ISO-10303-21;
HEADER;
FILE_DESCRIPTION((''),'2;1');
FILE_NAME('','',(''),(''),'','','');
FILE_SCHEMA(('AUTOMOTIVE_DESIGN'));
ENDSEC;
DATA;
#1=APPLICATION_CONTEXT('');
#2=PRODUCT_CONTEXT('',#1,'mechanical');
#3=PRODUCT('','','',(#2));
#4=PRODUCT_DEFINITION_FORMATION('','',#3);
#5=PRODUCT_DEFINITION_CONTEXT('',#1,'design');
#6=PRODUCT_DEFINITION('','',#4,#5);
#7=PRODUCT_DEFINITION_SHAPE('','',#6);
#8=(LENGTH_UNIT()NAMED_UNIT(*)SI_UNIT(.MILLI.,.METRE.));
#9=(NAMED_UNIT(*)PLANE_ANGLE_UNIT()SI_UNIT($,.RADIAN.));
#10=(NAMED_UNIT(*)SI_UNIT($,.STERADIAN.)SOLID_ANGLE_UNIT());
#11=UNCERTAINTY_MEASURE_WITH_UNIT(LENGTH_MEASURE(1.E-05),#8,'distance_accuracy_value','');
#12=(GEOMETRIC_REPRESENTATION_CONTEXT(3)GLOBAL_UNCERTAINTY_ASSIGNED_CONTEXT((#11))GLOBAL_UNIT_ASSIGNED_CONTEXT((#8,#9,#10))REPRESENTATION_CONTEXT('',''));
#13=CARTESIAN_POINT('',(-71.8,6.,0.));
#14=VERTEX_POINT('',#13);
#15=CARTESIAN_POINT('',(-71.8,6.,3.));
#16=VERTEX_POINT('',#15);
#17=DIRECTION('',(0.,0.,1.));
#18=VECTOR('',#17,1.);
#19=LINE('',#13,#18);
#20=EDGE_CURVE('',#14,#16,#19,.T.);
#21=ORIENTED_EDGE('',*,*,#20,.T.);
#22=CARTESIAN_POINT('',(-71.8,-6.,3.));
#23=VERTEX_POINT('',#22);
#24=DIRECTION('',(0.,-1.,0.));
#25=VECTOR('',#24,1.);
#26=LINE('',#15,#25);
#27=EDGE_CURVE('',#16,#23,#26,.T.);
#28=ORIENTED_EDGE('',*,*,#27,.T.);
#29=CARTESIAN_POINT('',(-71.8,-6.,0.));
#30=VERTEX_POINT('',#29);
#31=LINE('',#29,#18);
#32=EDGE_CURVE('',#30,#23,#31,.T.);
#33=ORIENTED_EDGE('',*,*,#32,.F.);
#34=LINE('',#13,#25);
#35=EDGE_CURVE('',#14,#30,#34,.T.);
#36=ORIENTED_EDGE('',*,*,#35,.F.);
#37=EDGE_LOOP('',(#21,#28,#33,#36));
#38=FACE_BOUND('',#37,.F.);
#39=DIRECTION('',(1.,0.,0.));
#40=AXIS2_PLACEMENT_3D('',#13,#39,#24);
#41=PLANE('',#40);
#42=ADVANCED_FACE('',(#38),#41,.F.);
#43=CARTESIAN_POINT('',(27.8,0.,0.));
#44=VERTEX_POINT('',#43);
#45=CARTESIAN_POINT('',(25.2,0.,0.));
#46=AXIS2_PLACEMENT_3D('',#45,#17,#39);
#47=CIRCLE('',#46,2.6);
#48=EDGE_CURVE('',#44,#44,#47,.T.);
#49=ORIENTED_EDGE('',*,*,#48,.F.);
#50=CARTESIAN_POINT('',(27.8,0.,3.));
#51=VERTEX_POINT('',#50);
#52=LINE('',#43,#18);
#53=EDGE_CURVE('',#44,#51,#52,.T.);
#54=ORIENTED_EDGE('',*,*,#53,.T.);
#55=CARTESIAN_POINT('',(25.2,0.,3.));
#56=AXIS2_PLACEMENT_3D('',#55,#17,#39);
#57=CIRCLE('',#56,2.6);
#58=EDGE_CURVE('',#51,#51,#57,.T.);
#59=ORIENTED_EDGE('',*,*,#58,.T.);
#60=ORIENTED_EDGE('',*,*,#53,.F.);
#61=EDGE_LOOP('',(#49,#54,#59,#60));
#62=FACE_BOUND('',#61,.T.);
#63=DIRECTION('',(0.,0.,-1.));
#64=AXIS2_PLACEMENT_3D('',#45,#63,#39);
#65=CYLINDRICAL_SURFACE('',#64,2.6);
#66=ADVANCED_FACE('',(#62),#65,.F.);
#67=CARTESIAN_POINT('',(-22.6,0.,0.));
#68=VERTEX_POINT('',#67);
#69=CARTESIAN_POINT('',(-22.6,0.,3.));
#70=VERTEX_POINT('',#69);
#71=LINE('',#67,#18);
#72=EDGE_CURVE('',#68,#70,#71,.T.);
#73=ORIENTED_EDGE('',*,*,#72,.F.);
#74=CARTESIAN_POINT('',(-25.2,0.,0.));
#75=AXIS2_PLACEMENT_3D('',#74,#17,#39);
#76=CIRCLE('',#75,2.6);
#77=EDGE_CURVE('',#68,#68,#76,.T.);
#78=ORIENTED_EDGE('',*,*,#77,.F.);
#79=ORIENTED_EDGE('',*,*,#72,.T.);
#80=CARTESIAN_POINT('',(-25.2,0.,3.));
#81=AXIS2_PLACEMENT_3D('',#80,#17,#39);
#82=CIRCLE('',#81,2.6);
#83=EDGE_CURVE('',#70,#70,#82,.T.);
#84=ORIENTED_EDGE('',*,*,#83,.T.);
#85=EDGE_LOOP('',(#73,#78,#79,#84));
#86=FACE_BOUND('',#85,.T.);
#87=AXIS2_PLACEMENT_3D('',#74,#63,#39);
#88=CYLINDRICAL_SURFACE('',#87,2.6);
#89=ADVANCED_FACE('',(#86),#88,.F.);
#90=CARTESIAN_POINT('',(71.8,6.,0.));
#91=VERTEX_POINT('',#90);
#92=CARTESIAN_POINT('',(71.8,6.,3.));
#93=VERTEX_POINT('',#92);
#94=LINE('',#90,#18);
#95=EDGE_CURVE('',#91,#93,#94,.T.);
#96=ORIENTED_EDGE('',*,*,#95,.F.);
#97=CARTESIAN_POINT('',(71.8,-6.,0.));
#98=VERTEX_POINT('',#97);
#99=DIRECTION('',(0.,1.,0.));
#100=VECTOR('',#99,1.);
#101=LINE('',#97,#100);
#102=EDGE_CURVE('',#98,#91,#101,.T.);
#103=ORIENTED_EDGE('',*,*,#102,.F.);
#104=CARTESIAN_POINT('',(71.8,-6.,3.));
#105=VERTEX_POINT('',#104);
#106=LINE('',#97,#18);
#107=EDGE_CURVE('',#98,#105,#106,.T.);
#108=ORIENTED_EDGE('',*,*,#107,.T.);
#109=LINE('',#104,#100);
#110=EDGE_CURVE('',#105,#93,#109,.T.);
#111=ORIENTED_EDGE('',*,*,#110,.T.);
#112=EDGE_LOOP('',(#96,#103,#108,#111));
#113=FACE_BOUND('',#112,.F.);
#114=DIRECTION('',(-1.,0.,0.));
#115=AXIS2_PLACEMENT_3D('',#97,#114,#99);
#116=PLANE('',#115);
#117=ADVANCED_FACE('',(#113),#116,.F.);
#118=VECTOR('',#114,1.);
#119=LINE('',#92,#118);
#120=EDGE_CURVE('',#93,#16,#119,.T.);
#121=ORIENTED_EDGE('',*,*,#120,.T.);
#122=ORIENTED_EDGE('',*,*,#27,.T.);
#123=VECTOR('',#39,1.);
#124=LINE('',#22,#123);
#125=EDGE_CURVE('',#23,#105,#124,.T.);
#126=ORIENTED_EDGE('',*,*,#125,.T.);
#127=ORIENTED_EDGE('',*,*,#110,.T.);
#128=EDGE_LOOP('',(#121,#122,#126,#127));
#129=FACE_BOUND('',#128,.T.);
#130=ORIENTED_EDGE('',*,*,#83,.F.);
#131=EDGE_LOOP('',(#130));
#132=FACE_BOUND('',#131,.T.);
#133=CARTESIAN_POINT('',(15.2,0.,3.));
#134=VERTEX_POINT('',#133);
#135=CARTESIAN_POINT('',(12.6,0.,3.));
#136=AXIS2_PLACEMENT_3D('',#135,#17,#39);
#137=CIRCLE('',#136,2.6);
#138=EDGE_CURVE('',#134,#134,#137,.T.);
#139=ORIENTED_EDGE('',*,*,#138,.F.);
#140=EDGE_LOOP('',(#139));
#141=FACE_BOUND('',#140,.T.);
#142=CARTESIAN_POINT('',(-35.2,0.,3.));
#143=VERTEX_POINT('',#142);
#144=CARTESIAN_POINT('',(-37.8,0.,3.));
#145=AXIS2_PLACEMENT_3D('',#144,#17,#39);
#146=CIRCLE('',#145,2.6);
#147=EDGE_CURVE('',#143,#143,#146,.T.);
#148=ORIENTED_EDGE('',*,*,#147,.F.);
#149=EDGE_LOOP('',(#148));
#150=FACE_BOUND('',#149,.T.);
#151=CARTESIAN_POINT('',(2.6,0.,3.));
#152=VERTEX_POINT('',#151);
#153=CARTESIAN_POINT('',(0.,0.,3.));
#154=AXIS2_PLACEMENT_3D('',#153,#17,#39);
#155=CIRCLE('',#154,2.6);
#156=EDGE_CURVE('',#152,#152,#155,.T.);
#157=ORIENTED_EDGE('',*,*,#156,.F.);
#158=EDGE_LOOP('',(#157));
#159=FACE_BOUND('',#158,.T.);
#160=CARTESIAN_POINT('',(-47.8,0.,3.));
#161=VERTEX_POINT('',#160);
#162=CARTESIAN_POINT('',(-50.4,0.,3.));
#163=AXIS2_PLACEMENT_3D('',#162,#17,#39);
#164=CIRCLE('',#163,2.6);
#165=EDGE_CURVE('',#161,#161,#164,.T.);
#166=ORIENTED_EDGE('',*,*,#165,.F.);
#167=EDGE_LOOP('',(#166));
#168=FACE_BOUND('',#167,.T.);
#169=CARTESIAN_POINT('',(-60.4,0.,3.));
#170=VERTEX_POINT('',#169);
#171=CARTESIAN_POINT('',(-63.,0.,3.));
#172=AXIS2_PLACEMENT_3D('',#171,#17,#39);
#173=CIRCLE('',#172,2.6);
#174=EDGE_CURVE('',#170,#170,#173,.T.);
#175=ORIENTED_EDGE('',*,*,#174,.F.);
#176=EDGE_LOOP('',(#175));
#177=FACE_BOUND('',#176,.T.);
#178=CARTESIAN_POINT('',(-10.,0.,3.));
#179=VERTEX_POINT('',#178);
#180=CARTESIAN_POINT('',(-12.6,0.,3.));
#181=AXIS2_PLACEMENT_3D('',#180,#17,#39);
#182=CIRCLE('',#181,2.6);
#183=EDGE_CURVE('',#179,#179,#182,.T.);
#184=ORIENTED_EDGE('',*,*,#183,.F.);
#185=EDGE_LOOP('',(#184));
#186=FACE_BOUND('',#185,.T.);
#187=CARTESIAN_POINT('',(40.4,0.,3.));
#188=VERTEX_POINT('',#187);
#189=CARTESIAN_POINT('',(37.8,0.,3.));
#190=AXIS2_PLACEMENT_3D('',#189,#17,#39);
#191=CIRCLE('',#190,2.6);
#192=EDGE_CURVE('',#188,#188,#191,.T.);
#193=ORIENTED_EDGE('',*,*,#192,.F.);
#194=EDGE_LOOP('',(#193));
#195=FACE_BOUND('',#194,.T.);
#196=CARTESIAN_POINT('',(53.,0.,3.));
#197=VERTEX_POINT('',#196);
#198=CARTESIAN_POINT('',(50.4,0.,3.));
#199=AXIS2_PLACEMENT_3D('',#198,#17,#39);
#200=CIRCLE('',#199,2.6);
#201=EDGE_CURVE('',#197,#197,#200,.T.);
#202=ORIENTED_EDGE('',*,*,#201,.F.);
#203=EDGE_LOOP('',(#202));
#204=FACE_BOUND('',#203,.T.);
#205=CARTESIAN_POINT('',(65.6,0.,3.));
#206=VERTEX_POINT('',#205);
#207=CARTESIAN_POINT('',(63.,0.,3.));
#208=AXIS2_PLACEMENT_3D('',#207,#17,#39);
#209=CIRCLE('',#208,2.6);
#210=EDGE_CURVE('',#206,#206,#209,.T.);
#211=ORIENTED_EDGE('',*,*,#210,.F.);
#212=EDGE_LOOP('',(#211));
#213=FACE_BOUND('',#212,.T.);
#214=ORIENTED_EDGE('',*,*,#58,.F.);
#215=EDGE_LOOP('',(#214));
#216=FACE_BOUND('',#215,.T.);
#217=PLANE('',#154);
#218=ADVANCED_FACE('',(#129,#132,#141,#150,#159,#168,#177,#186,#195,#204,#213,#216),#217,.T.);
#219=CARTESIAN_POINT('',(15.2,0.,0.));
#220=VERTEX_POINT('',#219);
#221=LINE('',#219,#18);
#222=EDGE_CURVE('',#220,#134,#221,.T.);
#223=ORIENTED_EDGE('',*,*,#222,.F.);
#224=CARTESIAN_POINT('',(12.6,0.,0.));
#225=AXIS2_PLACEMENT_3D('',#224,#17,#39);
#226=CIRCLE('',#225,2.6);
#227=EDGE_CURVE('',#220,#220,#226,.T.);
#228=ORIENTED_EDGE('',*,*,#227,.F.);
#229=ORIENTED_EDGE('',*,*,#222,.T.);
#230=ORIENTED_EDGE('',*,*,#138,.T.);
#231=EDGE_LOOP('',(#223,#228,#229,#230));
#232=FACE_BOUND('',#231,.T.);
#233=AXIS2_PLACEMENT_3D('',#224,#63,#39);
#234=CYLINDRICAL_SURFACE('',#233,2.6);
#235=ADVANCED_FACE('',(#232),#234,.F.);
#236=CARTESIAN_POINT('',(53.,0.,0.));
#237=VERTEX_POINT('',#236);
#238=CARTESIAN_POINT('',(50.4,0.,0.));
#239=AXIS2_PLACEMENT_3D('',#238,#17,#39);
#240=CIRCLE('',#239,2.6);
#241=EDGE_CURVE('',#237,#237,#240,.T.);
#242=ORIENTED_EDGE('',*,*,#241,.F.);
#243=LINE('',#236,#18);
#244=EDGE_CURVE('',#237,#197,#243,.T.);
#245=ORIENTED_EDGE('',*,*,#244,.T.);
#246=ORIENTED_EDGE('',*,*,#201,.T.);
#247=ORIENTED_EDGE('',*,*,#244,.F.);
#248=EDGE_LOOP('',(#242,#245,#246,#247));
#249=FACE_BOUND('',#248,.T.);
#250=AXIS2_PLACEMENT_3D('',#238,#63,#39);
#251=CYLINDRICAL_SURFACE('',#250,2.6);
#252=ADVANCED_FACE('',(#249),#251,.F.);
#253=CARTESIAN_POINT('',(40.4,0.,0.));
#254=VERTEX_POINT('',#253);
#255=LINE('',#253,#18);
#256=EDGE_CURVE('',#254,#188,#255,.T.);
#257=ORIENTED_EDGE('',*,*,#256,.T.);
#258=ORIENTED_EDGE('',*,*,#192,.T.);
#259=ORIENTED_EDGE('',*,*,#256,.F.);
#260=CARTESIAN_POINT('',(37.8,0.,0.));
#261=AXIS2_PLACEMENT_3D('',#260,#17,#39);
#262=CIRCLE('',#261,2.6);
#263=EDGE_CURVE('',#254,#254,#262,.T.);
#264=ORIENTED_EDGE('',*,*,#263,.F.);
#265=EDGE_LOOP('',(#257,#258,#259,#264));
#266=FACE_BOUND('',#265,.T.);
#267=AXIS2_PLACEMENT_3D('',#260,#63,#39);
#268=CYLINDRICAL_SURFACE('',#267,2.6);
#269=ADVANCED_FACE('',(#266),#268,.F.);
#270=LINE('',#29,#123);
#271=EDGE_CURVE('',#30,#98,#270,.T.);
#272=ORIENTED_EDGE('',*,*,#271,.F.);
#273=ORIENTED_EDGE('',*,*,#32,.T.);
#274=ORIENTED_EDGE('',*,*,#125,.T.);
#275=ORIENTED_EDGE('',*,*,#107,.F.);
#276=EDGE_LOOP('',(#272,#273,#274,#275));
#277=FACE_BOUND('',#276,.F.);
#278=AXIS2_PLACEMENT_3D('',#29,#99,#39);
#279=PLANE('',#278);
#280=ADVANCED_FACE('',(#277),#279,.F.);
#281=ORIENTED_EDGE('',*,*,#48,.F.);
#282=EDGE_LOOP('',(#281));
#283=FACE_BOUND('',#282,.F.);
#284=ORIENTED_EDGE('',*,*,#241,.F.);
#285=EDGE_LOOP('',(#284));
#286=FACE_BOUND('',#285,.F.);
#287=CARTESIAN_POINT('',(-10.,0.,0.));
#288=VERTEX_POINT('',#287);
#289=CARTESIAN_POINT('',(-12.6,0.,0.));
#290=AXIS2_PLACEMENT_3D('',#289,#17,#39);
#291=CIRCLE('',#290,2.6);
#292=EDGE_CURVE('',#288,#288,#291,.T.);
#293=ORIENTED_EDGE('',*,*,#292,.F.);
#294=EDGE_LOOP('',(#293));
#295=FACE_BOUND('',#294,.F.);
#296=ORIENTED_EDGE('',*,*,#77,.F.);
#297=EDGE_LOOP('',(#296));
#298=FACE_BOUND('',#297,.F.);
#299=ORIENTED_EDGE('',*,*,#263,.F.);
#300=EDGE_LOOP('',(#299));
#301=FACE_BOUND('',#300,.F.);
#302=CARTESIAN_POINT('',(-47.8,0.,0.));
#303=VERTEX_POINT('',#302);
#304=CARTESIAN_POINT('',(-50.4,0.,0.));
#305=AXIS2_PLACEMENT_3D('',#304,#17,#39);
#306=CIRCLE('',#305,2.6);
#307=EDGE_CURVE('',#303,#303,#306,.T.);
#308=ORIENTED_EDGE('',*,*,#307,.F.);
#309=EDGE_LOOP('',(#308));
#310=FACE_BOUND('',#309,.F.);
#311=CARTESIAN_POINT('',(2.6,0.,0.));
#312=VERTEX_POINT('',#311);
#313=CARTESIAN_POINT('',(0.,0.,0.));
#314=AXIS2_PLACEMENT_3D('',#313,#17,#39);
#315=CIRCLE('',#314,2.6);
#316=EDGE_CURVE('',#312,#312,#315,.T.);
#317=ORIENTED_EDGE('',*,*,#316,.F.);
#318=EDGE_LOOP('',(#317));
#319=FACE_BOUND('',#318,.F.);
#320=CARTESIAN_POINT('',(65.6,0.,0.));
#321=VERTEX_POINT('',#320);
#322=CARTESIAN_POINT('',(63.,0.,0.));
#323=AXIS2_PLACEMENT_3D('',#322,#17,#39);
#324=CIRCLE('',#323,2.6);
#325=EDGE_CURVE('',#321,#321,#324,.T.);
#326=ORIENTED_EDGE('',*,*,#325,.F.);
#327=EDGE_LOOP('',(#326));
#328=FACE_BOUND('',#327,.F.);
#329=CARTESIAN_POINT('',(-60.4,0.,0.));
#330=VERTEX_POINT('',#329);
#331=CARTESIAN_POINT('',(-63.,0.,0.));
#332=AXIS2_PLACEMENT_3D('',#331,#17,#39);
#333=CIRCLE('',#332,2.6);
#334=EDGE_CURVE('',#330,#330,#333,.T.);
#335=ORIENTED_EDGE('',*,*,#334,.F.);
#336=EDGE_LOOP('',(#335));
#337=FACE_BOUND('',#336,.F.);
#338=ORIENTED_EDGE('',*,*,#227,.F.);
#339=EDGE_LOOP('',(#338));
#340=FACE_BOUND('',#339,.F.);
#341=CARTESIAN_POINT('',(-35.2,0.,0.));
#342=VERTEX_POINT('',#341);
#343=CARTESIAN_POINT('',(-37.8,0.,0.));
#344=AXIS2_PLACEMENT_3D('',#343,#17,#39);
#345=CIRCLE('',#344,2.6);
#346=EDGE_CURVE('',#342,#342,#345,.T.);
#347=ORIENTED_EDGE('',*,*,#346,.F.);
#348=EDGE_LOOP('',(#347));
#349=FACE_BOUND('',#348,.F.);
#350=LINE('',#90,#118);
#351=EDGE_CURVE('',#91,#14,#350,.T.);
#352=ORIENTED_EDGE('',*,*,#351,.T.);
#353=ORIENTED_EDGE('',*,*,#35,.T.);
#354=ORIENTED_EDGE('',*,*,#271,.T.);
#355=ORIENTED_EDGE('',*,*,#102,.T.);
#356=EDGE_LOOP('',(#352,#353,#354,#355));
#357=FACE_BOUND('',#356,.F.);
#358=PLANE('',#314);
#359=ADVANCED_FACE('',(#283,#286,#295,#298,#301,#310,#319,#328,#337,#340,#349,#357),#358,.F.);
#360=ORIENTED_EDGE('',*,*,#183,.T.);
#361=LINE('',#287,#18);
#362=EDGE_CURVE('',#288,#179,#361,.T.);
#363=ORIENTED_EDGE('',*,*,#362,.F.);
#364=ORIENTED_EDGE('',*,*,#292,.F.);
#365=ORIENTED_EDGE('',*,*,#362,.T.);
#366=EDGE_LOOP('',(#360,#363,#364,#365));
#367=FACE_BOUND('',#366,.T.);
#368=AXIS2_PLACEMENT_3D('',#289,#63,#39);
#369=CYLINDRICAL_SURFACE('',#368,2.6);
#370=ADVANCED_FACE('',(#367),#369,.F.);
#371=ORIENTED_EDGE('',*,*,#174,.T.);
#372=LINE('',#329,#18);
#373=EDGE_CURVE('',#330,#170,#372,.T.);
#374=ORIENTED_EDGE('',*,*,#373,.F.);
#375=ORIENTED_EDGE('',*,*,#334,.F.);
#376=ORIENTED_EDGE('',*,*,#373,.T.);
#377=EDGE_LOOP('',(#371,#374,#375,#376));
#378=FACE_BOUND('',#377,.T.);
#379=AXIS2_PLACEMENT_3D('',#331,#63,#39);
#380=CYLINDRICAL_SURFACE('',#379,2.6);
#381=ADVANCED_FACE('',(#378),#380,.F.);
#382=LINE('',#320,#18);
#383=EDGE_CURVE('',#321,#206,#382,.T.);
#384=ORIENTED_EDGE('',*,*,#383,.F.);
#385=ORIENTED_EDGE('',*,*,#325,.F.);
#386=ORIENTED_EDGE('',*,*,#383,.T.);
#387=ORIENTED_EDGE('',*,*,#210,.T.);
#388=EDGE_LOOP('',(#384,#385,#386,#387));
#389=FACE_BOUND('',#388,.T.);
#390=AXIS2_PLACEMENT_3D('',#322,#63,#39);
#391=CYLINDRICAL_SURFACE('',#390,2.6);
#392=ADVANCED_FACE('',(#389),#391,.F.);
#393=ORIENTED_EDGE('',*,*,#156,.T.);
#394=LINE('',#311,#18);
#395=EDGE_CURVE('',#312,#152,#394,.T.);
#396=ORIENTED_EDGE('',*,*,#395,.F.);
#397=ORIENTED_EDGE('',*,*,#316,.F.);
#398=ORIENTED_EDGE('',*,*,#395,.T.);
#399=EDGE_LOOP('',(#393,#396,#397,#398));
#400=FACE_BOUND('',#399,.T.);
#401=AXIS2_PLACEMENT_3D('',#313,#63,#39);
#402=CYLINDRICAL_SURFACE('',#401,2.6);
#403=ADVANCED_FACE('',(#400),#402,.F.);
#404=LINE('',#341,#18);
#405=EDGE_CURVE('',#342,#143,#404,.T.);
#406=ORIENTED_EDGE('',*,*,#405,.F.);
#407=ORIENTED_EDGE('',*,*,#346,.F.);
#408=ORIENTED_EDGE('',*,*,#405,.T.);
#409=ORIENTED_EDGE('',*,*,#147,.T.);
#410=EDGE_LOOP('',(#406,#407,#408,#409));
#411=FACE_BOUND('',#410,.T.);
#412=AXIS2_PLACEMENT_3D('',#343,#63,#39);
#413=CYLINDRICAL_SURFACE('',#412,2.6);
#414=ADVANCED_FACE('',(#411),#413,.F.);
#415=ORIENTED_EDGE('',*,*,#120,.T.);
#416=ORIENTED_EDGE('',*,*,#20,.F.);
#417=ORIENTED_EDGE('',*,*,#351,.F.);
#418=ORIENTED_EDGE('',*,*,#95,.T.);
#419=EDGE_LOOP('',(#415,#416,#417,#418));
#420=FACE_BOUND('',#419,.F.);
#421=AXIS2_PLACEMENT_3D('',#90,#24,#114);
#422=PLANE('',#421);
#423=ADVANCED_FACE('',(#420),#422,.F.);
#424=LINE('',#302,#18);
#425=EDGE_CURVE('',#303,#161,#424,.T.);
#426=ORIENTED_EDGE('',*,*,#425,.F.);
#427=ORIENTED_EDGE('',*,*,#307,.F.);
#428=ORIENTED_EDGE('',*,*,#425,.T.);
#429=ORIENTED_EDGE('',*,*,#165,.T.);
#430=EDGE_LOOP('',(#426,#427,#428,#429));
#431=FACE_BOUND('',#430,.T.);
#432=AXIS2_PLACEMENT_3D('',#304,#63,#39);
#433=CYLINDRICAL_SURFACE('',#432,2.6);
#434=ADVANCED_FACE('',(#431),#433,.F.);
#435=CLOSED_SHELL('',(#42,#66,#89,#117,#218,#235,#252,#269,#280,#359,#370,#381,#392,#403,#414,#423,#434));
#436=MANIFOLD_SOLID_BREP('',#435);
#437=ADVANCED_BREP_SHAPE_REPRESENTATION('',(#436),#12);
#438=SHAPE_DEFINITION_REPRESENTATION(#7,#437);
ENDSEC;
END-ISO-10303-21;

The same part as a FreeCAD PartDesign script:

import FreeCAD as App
import Part
import Sketcher

V = App.Vector
Q = App.Units.Quantity


def add_polygon(sketch, points):
    """Adds a closed chain of lines whose ends are joined by coincident constraints."""
    first, n = sketch.GeometryCount, len(points)
    for a, b in zip(points, points[1:] + points[:1]):
        sketch.addGeometry(Part.LineSegment(App.Vector(*a, 0), App.Vector(*b, 0)), False)
    for i in range(n):
        sketch.addConstraint(Sketcher.Constraint("Coincident", first + i, 2, first + (i + 1) % n, 1))

doc = App.newDocument("Part")
body = doc.addObject("PartDesign::Body", "Body")

sketch1 = body.newObject("Sketcher::SketchObject", "Sketch")
sketch1.AttachmentSupport = (doc.getObject("XY_Plane"), [""])
sketch1.MapMode = "FlatFace"
add_polygon(sketch1, [(-71.8, 6), (-71.8, -6), (71.8, -6), (71.8, 6)])
sketch1.addGeometry(Part.Circle(V(-63, 0, 0), V(0, 0, 1), 2.6), False)
sketch1.addGeometry(Part.Circle(V(-50.4, 0, 0), V(0, 0, 1), 2.6), False)
sketch1.addGeometry(Part.Circle(V(-37.8, 0, 0), V(0, 0, 1), 2.6), False)
sketch1.addGeometry(Part.Circle(V(-25.2, 0, 0), V(0, 0, 1), 2.6), False)
sketch1.addGeometry(Part.Circle(V(-12.6, 0, 0), V(0, 0, 1), 2.6), False)
sketch1.addGeometry(Part.Circle(V(0, 0, 0), V(0, 0, 1), 2.6), False)
sketch1.addGeometry(Part.Circle(V(12.6, 0, 0), V(0, 0, 1), 2.6), False)
sketch1.addGeometry(Part.Circle(V(25.2, 0, 0), V(0, 0, 1), 2.6), False)
sketch1.addGeometry(Part.Circle(V(37.8, 0, 0), V(0, 0, 1), 2.6), False)
sketch1.addGeometry(Part.Circle(V(50.4, 0, 0), V(0, 0, 1), 2.6), False)
sketch1.addGeometry(Part.Circle(V(63, 0, 0), V(0, 0, 1), 2.6), False)
sketch1.addConstraint(Sketcher.Constraint("Vertical", 0))
sketch1.addConstraint(Sketcher.Constraint("Horizontal", 1))
sketch1.addConstraint(Sketcher.Constraint("Vertical", 2))
sketch1.addConstraint(Sketcher.Constraint("Horizontal", 3))
sketch1.addConstraint(Sketcher.Constraint("Coincident", 9, 3, -1, 1))
sketch1.addConstraint(Sketcher.Constraint("Equal", 4, 5))
sketch1.addConstraint(Sketcher.Constraint("Equal", 5, 6))
sketch1.addConstraint(Sketcher.Constraint("Equal", 6, 7))
sketch1.addConstraint(Sketcher.Constraint("Equal", 7, 8))
sketch1.addConstraint(Sketcher.Constraint("Equal", 8, 9))
sketch1.addConstraint(Sketcher.Constraint("Equal", 9, 10))
sketch1.addConstraint(Sketcher.Constraint("Equal", 10, 11))
sketch1.addConstraint(Sketcher.Constraint("Equal", 11, 12))
sketch1.addConstraint(Sketcher.Constraint("Equal", 12, 13))
sketch1.addConstraint(Sketcher.Constraint("Equal", 13, 14))
sketch1.addConstraint(Sketcher.Constraint("Symmetric", 8, 3, 10, 3, -1, 1))
sketch1.addConstraint(Sketcher.Constraint("Symmetric", 7, 3, 11, 3, -1, 1))
sketch1.addConstraint(Sketcher.Constraint("Symmetric", 6, 3, 12, 3, -1, 1))
sketch1.addConstraint(Sketcher.Constraint("Symmetric", 5, 3, 13, 3, -1, 1))
sketch1.addConstraint(Sketcher.Constraint("Symmetric", 4, 3, 14, 3, -1, 1))
sketch1.addConstraint(Sketcher.Constraint("Symmetric", 0, 2, 2, 2, -1, 1))
sketch1.addConstraint(Sketcher.Constraint("PointOnObject", 4, 3, -1))
sketch1.addConstraint(Sketcher.Constraint("PointOnObject", 5, 3, -1))
sketch1.addConstraint(Sketcher.Constraint("PointOnObject", 6, 3, -1))
sketch1.addConstraint(Sketcher.Constraint("PointOnObject", 7, 3, -1))
sketch1.addConstraint(Sketcher.Constraint("PointOnObject", 8, 3, -1))
sketch1.addConstraint(Sketcher.Constraint("Diameter", 4, Q("5.2 mm")))
sketch1.addConstraint(Sketcher.Constraint("DistanceY", 0, 2, 0, 1, Q("12 mm")))
sketch1.addConstraint(Sketcher.Constraint("DistanceX", 1, 1, 1, 2, Q("143.6 mm")))
sketch1.addConstraint(Sketcher.Constraint("DistanceX", 4, 3, -1, 1, Q("63 mm")))
sketch1.addConstraint(Sketcher.Constraint("DistanceX", 5, 3, 10, 3, Q("63 mm")))
sketch1.addConstraint(Sketcher.Constraint("DistanceX", 6, 3, 11, 3, Q("63 mm")))
sketch1.addConstraint(Sketcher.Constraint("DistanceX", 0, 2, 6, 3, Q("34 mm")))
sketch1.addConstraint(Sketcher.Constraint("DistanceX", 5, 3, -1, 1, Q("50.4 mm")))
pad1 = body.newObject("PartDesign::Pad", "Pad")
pad1.Profile = sketch1
pad1.Length = 3

doc.recompute()
